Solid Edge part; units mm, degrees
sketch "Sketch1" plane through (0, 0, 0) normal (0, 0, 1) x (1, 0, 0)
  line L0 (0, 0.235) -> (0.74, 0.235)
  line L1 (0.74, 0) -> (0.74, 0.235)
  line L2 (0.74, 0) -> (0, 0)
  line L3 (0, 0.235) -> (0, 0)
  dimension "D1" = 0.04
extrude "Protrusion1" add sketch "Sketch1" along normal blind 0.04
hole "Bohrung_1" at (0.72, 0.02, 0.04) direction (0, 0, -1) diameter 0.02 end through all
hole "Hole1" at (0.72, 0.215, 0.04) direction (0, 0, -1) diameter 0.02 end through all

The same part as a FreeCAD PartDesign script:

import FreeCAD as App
import Part
import Sketcher

V = App.Vector
Q = App.Units.Quantity

doc = App.newDocument("Part")
body = doc.addObject("PartDesign::Body", "Body")

sketch1 = body.newObject("Sketcher::SketchObject", "Sketch")
sketch1.AttachmentSupport = (doc.getObject("XY_Plane"), [""])
sketch1.MapMode = "FlatFace"
sketch1.addGeometry([
    Part.LineSegment(V(0.74, 0.23, 0), V(0, 0.23, 0)),
    Part.LineSegment(V(0, 0.23, 0), V(0, 0, 0)),
    Part.LineSegment(V(0, 0, 0), V(0.74, 0, 0)),
    Part.LineSegment(V(0.74, 0, 0), V(0.74, 0.23, 0)),
], False)
sketch1.addConstraint([
    Sketcher.Constraint("Coincident", 0, 2, 1, 1),
    Sketcher.Constraint("Coincident", 1, 2, 2, 1),
    Sketcher.Constraint("Coincident", 2, 2, 3, 1),
    Sketcher.Constraint("Coincident", 3, 2, 0, 1),
    Sketcher.Constraint("Horizontal", 0),
    Sketcher.Constraint("Vertical", 1),
    Sketcher.Constraint("Horizontal", 2),
    Sketcher.Constraint("Vertical", 3),
    Sketcher.Constraint("Coincident", 1, 2, -1, 1),
    Sketcher.Constraint("DistanceX", 0, 2, 0, 1, Q("0.74 mm")),
    Sketcher.Constraint("DistanceY", 1, 2, 1, 1, Q("0.235 mm")),
])
pad1 = body.newObject("PartDesign::Pad", "Pad")
pad1.Profile = sketch1
pad1.Length = 0.04

sketch2 = body.newObject("Sketcher::SketchObject", "Sketch001")
sketch2.AttachmentSupport = (doc.getObject("XY_Plane"), [""])
sketch2.MapMode = "FlatFace"
sketch2.AttachmentOffset = App.Placement(V(0, 0, 0.04), App.Rotation())
sketch2.addGeometry(Part.Circle(V(0.72, 0.02, 0), V(0, 0, 1), 0.01), False)
sketch2.addConstraint([
    Sketcher.Constraint("Diameter", 0, Q("0.02 mm")),
    Sketcher.Constraint("DistanceX", -1, 1, 0, 3, Q("0.72 mm")),
    Sketcher.Constraint("DistanceY", -1, 1, 0, 3, Q("0.02 mm")),
])
doc.recompute()
hole = body.newObject("PartDesign::Hole", "Hole")
hole.Profile = sketch2
hole.ThreadType = "None"
hole.Diameter = 0.02
hole.DepthType = "ThroughAll"

sketch3 = body.newObject("Sketcher::SketchObject", "Sketch002")
sketch3.AttachmentSupport = (doc.getObject("XY_Plane"), [""])
sketch3.MapMode = "FlatFace"
sketch3.AttachmentOffset = App.Placement(V(0, 0, 0.04), App.Rotation())
sketch3.addGeometry(Part.Circle(V(0.72, 0.215, 0), V(0, 0, 1), 0.01), False)
sketch3.addConstraint([
    Sketcher.Constraint("Diameter", 0, Q("0.02 mm")),
    Sketcher.Constraint("DistanceX", -1, 1, 0, 3, Q("0.72 mm")),
    Sketcher.Constraint("DistanceY", -1, 1, 0, 3, Q("0.215 mm")),
])
doc.recompute()
hole2 = body.newObject("PartDesign::Hole", "Hole001")
hole2.Profile = sketch3
hole2.ThreadType = "None"
hole2.Diameter = 0.02
hole2.DepthType = "ThroughAll"

doc.recompute()
